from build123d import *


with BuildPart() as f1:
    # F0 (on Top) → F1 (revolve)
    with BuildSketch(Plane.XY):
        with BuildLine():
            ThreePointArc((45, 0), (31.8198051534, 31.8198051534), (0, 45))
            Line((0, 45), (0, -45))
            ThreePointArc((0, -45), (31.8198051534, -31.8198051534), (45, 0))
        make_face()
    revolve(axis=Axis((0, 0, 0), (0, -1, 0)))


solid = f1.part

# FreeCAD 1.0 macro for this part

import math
import FreeCAD as App
import Part
import Sketcher
Q = App.Units.Quantity

doc = App.newDocument("Part")
body = doc.addObject("PartDesign::Body", "Body")

sketch1 = body.newObject("Sketcher::SketchObject", "Sketch")
sketch1.AttachmentSupport = (doc.getObject("XY_Plane"), [""])
sketch1.MapMode = "FlatFace"
sketch1.addGeometry([
    Part.LineSegment(App.Vector(0, 45, 0), App.Vector(0, -45, 0)),
    Part.ArcOfCircle(Part.Circle(App.Vector(0, 0, 0), App.Vector(0, 0, 1), 45), math.radians(-90), math.radians(90)),
], False)
sketch1.addConstraint([
    Sketcher.Constraint("Coincident", 0, 1, 1, 2),
    Sketcher.Constraint("Coincident", 1, 1, 0, 2),
    Sketcher.Constraint("Vertical", 0),
    Sketcher.Constraint("Coincident", 1, 3, -1, 1),
    Sketcher.Constraint("PointOnObject", 0, 1, -2),
    Sketcher.Constraint("Radius", 1, Q("45 mm")),
])
revolution = body.newObject("PartDesign::Revolution", "Revolution")
revolution.Profile = sketch1
revolution.ReferenceAxis = (sketch1, ["V_Axis"])
revolution.Angle = 360

doc.recompute()
